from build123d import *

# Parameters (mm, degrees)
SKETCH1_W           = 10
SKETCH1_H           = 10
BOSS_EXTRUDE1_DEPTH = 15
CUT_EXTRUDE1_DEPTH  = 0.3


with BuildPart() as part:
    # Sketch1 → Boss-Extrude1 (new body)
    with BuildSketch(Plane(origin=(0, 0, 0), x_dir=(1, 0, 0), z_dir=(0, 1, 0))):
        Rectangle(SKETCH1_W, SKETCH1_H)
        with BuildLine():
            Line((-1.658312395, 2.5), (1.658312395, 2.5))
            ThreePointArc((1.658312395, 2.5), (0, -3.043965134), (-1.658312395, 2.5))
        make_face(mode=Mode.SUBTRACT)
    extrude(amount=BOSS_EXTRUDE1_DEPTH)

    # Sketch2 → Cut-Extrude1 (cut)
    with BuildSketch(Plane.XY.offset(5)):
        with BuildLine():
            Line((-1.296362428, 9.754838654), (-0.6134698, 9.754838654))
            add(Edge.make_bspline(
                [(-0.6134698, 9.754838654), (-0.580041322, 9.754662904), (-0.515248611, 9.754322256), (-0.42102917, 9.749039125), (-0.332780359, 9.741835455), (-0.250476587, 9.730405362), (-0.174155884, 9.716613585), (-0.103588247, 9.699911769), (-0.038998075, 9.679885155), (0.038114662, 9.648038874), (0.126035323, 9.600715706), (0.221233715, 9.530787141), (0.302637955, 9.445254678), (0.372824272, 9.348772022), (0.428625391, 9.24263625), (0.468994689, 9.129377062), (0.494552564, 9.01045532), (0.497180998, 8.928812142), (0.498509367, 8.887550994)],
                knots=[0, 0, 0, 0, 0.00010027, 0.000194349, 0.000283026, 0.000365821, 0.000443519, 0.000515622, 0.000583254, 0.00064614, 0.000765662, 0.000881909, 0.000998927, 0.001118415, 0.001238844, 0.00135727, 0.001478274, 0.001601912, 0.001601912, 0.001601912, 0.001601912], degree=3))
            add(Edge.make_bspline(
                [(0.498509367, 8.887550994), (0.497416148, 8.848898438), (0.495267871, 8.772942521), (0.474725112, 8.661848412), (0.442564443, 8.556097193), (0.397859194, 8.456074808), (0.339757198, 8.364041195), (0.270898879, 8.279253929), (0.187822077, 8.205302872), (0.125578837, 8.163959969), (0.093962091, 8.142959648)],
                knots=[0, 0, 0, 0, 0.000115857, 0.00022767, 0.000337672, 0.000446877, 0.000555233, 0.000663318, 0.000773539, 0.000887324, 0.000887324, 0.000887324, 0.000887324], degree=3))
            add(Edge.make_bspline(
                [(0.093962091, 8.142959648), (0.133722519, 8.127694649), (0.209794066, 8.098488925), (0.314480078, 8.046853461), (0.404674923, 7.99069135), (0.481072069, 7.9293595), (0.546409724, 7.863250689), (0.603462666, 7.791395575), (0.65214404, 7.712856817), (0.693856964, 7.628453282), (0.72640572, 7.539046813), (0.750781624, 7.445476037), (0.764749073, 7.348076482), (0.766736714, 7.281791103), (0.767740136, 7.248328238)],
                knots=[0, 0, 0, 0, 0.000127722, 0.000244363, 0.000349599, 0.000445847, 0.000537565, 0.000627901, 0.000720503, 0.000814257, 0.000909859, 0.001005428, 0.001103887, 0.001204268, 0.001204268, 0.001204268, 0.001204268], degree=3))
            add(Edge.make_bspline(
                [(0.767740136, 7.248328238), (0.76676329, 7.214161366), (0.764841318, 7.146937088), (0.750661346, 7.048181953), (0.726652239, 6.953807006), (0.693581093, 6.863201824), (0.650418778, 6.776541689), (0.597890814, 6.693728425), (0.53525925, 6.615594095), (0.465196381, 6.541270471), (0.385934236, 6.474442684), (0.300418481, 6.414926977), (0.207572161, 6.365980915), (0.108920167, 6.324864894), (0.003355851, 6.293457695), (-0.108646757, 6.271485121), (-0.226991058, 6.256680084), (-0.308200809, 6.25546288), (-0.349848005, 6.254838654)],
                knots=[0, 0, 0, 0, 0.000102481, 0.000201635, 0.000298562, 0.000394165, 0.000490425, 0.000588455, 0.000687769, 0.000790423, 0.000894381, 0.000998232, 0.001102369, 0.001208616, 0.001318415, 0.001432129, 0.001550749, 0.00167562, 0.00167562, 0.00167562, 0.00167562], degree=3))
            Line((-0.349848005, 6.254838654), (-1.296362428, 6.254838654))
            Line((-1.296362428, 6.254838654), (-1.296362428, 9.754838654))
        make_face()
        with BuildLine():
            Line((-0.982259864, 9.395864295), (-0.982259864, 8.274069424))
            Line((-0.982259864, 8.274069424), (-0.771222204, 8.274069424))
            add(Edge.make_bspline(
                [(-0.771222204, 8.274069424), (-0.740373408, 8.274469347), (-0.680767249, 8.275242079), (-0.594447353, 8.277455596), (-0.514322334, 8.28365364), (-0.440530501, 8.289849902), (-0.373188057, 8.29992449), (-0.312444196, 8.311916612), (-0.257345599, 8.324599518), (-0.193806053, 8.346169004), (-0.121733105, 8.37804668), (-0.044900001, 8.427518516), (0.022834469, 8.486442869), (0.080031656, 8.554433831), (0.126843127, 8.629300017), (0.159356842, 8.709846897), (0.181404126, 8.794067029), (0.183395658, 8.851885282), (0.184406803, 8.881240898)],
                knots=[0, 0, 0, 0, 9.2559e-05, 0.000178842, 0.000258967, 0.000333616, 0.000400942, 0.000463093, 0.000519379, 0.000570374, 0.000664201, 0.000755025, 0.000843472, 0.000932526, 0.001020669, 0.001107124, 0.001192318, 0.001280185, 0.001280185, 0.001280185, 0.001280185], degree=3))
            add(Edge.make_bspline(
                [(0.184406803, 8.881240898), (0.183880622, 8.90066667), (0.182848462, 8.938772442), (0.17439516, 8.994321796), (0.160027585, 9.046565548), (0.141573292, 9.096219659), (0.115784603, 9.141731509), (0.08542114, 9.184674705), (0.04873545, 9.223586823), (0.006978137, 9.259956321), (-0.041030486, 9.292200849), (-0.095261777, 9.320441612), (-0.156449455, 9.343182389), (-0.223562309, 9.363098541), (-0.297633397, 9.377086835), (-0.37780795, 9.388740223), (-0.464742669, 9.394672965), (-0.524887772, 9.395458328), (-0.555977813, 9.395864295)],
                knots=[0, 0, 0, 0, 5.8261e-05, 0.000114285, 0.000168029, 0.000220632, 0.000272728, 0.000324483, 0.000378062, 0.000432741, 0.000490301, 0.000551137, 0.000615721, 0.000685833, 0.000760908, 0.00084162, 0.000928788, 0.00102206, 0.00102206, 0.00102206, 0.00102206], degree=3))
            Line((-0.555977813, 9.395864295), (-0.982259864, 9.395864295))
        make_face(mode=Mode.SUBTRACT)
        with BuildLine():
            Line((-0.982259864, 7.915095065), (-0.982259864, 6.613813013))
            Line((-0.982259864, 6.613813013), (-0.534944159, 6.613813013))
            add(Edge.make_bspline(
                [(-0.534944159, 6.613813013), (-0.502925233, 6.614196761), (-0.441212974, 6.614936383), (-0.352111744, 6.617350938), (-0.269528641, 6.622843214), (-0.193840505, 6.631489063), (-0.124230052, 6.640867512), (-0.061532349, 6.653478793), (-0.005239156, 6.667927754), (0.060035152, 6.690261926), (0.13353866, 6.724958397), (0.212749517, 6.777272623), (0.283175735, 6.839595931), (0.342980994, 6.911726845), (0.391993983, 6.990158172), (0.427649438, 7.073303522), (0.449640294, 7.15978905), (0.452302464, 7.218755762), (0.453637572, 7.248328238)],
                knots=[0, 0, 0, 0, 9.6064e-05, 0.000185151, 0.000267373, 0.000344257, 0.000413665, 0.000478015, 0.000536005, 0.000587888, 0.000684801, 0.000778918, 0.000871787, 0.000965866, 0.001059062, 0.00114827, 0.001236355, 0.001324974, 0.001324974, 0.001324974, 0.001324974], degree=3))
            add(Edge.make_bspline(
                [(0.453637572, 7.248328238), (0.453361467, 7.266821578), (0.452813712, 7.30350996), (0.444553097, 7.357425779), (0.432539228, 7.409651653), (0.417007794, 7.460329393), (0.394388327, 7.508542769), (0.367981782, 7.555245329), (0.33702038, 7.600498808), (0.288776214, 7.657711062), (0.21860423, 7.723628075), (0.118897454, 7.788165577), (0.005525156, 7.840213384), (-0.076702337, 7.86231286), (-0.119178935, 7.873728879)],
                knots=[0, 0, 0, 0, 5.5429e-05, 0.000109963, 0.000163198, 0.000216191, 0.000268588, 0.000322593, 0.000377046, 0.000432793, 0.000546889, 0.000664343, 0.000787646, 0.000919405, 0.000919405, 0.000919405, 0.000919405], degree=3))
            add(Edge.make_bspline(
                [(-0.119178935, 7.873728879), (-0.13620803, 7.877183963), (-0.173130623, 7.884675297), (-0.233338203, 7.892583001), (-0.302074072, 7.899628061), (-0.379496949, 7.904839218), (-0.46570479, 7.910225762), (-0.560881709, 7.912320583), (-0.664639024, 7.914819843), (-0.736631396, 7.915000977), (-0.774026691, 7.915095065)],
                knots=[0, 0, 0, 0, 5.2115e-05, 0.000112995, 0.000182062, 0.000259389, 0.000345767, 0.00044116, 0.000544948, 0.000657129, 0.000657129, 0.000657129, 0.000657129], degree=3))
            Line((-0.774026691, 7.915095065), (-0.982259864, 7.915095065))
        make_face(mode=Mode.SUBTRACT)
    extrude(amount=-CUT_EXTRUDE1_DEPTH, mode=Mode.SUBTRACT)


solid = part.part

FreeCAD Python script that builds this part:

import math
import FreeCAD as App
import Part
import Sketcher

V = App.Vector
Q = App.Units.Quantity

doc = App.newDocument("Part")
body = doc.addObject("PartDesign::Body", "Body")

sketch1 = body.newObject("Sketcher::SketchObject", "Sketch")
sketch1.AttachmentSupport = (doc.getObject("XZ_Plane"), [""])
sketch1.MapMode = "FlatFace"
sketch1.addGeometry(Part.LineSegment(V(-5, -5, 0), V(-5, 5, 0)), False)
sketch1.addGeometry(Part.LineSegment(V(-5, 5, 0), V(5, 5, 0)), False)
sketch1.addGeometry(Part.LineSegment(V(5, 5, 0), V(5, -5, 0)), False)
sketch1.addGeometry(Part.LineSegment(V(5, -5, 0), V(-5, -5, 0)), False)
sketch1.addGeometry(Part.ArcOfCircle(Part.Circle(V(0, 0, 0), V(0, 0, 1), 3), math.radians(-57), math.radians(237)), False)
sketch1.addGeometry(Part.LineSegment(V(-1.7, -2.5, 0), V(1.7, -2.5, 0)), False)
sketch1.addConstraint(Sketcher.Constraint("Coincident", 0, 2, 1, 1))
sketch1.addConstraint(Sketcher.Constraint("Coincident", 1, 2, 2, 1))
sketch1.addConstraint(Sketcher.Constraint("Coincident", 2, 2, 3, 1))
sketch1.addConstraint(Sketcher.Constraint("Coincident", 3, 2, 0, 1))
sketch1.addConstraint(Sketcher.Constraint("Coincident", 4, 1, 5, 2))
sketch1.addConstraint(Sketcher.Constraint("Coincident", 5, 1, 4, 2))
sketch1.addConstraint(Sketcher.Constraint("Vertical", 0))
sketch1.addConstraint(Sketcher.Constraint("Horizontal", 1))
sketch1.addConstraint(Sketcher.Constraint("Vertical", 2))
sketch1.addConstraint(Sketcher.Constraint("Horizontal", 3))
sketch1.addConstraint(Sketcher.Constraint("Horizontal", 5))
sketch1.addConstraint(Sketcher.Constraint("Symmetric", 0, 2, 2, 2, -1, 1))
sketch1.addConstraint(Sketcher.Constraint("PointOnObject", 4, 3, -2))
sketch1.addConstraint(Sketcher.Constraint("Equal", 3, 0))
sketch1.addConstraint(Sketcher.Constraint("DistanceX", 1, 1, 1, 2, Q("10 mm")))
sketch1.addConstraint(Sketcher.Constraint("Radius", 4, Q("3.02 mm")))
sketch1.addConstraint(Sketcher.Constraint("DistanceY", 4, 1, -1, 1, Q("2.5 mm")))
sketch1.addConstraint(Sketcher.Constraint("DistanceX", 5, 1, 5, 2, Q("3.316625 mm")))
pad1 = body.newObject("PartDesign::Pad", "Pad")
pad1.Profile = sketch1
pad1.Length = 15
pad1.Reversed = True

sketch2 = body.newObject("Sketcher::SketchObject", "Sketch001")
sketch2.AttachmentSupport = (doc.getObject("XY_Plane"), [""])
sketch2.MapMode = "FlatFace"
sketch2.AttachmentOffset = App.Placement(V(0, 0, 5), App.Rotation())
sketch2.addGeometry(Part.LineSegment(V(-0.61347, 9.754839, 0), V(-1.296362, 9.754839, 0)), False)
sketch2.addGeometry(Part.LineSegment(V(-1.296362, 9.754839, 0), V(-1.296362, 6.254839, 0)), False)
sketch2.addGeometry(Part.LineSegment(V(-1.296362, 6.254839, 0), V(-0.349848, 6.254839, 0)), False)
sketch2.addGeometry(Part.BSplineCurve([V(0.76774, 7.248328, 0), V(0.766763, 7.214161, 0), V(0.764841, 7.146937, 0), V(0.750661, 7.048182, 0), V(0.726652, 6.953807, 0), V(0.693581, 6.863202, 0), V(0.650419, 6.776542, 0), V(0.597891, 6.693728, 0), V(0.535259, 6.615594, 0), V(0.465196, 6.54127, 0), V(0.385934, 6.474443, 0), V(0.300418, 6.414927, 0), V(0.207572, 6.365981, 0), V(0.10892, 6.324865, 0), V(0.003356, 6.293458, 0), V(-0.108647, 6.271485, 0), V(-0.226991, 6.25668, 0), V(-0.308201, 6.255463, 0), V(-0.349848, 6.254839, 0)], [4, 1, 1, 1, 1, 1, 1, 1, 1, 1, 1, 1, 1, 1, 1, 1, 4], [0, 0.000102481, 0.000201635, 0.000298562, 0.000394165, 0.000490425, 0.000588455, 0.000687769, 0.000790423, 0.000894381, 0.000998232, 0.001102369, 0.001208616, 0.001318415, 0.001432129, 0.001550749, 0.00167562], False, 3, [1, 1, 1, 1, 1, 1, 1, 1, 1, 1, 1, 1, 1, 1, 1, 1, 1, 1, 1], False), False)
sketch2.addGeometry(Part.BSplineCurve([V(0.093962, 8.14296, 0), V(0.133723, 8.127695, 0), V(0.209794, 8.098489, 0), V(0.31448, 8.046853, 0), V(0.404675, 7.990691, 0), V(0.481072, 7.92936, 0), V(0.54641, 7.863251, 0), V(0.603463, 7.791396, 0), V(0.652144, 7.712857, 0), V(0.693857, 7.628453, 0), V(0.726406, 7.539047, 0), V(0.750782, 7.445476, 0), V(0.764749, 7.348076, 0), V(0.766737, 7.281791, 0), V(0.76774, 7.248328, 0)], [4, 1, 1, 1, 1, 1, 1, 1, 1, 1, 1, 1, 4], [0, 0.000127722, 0.000244363, 0.000349599, 0.000445847, 0.000537565, 0.000627901, 0.000720503, 0.000814257, 0.000909859, 0.001005428, 0.001103887, 0.001204268], False, 3, [1, 1, 1, 1, 1, 1, 1, 1, 1, 1, 1, 1, 1, 1, 1], False), False)
sketch2.addGeometry(Part.BSplineCurve([V(0.498509, 8.887551, 0), V(0.497416, 8.848898, 0), V(0.495268, 8.772943, 0), V(0.474725, 8.661848, 0), V(0.442564, 8.556097, 0), V(0.397859, 8.456075, 0), V(0.339757, 8.364041, 0), V(0.270899, 8.279254, 0), V(0.187822, 8.205303, 0), V(0.125579, 8.16396, 0), V(0.093962, 8.14296, 0)], [4, 1, 1, 1, 1, 1, 1, 1, 4], [0, 0.000115857, 0.00022767, 0.000337672, 0.000446877, 0.000555233, 0.000663318, 0.000773539, 0.000887324], False, 3, [1, 1, 1, 1, 1, 1, 1, 1, 1, 1, 1], False), False)
sketch2.addGeometry(Part.BSplineCurve([V(-0.61347, 9.754839, 0), V(-0.580041, 9.754663, 0), V(-0.515249, 9.754322, 0), V(-0.421029, 9.749039, 0), V(-0.33278, 9.741835, 0), V(-0.250477, 9.730405, 0), V(-0.174156, 9.716614, 0), V(-0.103588, 9.699912, 0), V(-0.038998, 9.679885, 0), V(0.038115, 9.648039, 0), V(0.126035, 9.600716, 0), V(0.221234, 9.530787, 0), V(0.302638, 9.445255, 0), V(0.372824, 9.348772, 0), V(0.428625, 9.242636, 0), V(0.468995, 9.129377, 0), V(0.494553, 9.010455, 0), V(0.497181, 8.928812, 0), V(0.498509, 8.887551, 0)], [4, 1, 1, 1, 1, 1, 1, 1, 1, 1, 1, 1, 1, 1, 1, 1, 4], [0, 0.00010027, 0.000194349, 0.000283026, 0.000365821, 0.000443519, 0.000515622, 0.000583254, 0.00064614, 0.000765662, 0.000881909, 0.000998927, 0.001118415, 0.001238844, 0.00135727, 0.001478274, 0.001601912], False, 3, [1, 1, 1, 1, 1, 1, 1, 1, 1, 1, 1, 1, 1, 1, 1, 1, 1, 1, 1], False), False)
sketch2.addGeometry(Part.LineSegment(V(-0.98226, 7.915095, 0), V(-0.774027, 7.915095, 0)), False)
sketch2.addGeometry(Part.BSplineCurve([V(-0.119179, 7.873729, 0), V(-0.136208, 7.877184, 0), V(-0.173131, 7.884675, 0), V(-0.233338, 7.892583, 0), V(-0.302074, 7.899628, 0), V(-0.379497, 7.904839, 0), V(-0.465705, 7.910226, 0), V(-0.560882, 7.912321, 0), V(-0.664639, 7.91482, 0), V(-0.736631, 7.915001, 0), V(-0.774027, 7.915095, 0)], [4, 1, 1, 1, 1, 1, 1, 1, 4], [0, 0.000052115, 0.000112995, 0.000182062, 0.000259389, 0.000345767, 0.00044116, 0.000544948, 0.000657129], False, 3, [1, 1, 1, 1, 1, 1, 1, 1, 1, 1, 1], False), False)
sketch2.addGeometry(Part.BSplineCurve([V(0.453638, 7.248328, 0), V(0.453361, 7.266822, 0), V(0.452814, 7.30351, 0), V(0.444553, 7.357426, 0), V(0.432539, 7.409652, 0), V(0.417008, 7.460329, 0), V(0.394388, 7.508543, 0), V(0.367982, 7.555245, 0), V(0.33702, 7.600499, 0), V(0.288776, 7.657711, 0), V(0.218604, 7.723628, 0), V(0.118897, 7.788166, 0), V(0.005525, 7.840213, 0), V(-0.076702, 7.862313, 0), V(-0.119179, 7.873729, 0)], [4, 1, 1, 1, 1, 1, 1, 1, 1, 1, 1, 1, 4], [0, 0.000055429, 0.000109963, 0.000163198, 0.000216191, 0.000268588, 0.000322593, 0.000377046, 0.000432793, 0.000546889, 0.000664343, 0.000787646, 0.000919405], False, 3, [1, 1, 1, 1, 1, 1, 1, 1, 1, 1, 1, 1, 1, 1, 1], False), False)
sketch2.addGeometry(Part.BSplineCurve([V(-0.534944, 6.613813, 0), V(-0.502925, 6.614197, 0), V(-0.441213, 6.614936, 0), V(-0.352112, 6.617351, 0), V(-0.269529, 6.622843, 0), V(-0.193841, 6.631489, 0), V(-0.12423, 6.640868, 0), V(-0.061532, 6.653479, 0), V(-0.005239, 6.667928, 0), V(0.060035, 6.690262, 0), V(0.133539, 6.724958, 0), V(0.21275, 6.777273, 0), V(0.283176, 6.839596, 0), V(0.342981, 6.911727, 0), V(0.391994, 6.990158, 0), V(0.427649, 7.073304, 0), V(0.44964, 7.159789, 0), V(0.452302, 7.218756, 0), V(0.453638, 7.248328, 0)], [4, 1, 1, 1, 1, 1, 1, 1, 1, 1, 1, 1, 1, 1, 1, 1, 4], [0, 0.000096064, 0.000185151, 0.000267373, 0.000344257, 0.000413665, 0.000478015, 0.000536005, 0.000587888, 0.000684801, 0.000778918, 0.000871787, 0.000965866, 0.001059062, 0.00114827, 0.001236355, 0.001324974], False, 3, [1, 1, 1, 1, 1, 1, 1, 1, 1, 1, 1, 1, 1, 1, 1, 1, 1, 1, 1], False), False)
sketch2.addGeometry(Part.LineSegment(V(-0.534944, 6.613813, 0), V(-0.98226, 6.613813, 0)), False)
sketch2.addGeometry(Part.LineSegment(V(-0.98226, 6.613813, 0), V(-0.98226, 7.915095, 0)), False)
sketch2.addGeometry(Part.LineSegment(V(-0.98226, 9.395864, 0), V(-0.555978, 9.395864, 0)), False)
sketch2.addGeometry(Part.BSplineCurve([V(0.184407, 8.881241, 0), V(0.183881, 8.900667, 0), V(0.182848, 8.938772, 0), V(0.174395, 8.994322, 0), V(0.160028, 9.046566, 0), V(0.141573, 9.09622, 0), V(0.115785, 9.141732, 0), V(0.085421, 9.184675, 0), V(0.048735, 9.223587, 0), V(0.006978, 9.259956, 0), V(-0.04103, 9.292201, 0), V(-0.095262, 9.320442, 0), V(-0.156449, 9.343182, 0), V(-0.223562, 9.363099, 0), V(-0.297633, 9.377087, 0), V(-0.377808, 9.38874, 0), V(-0.464743, 9.394673, 0), V(-0.524888, 9.395458, 0), V(-0.555978, 9.395864, 0)], [4, 1, 1, 1, 1, 1, 1, 1, 1, 1, 1, 1, 1, 1, 1, 1, 4], [0, 0.000058261, 0.000114285, 0.000168029, 0.000220632, 0.000272728, 0.000324483, 0.000378062, 0.000432741, 0.000490301, 0.000551137, 0.000615721, 0.000685833, 0.000760908, 0.00084162, 0.000928788, 0.00102206], False, 3, [1, 1, 1, 1, 1, 1, 1, 1, 1, 1, 1, 1, 1, 1, 1, 1, 1, 1, 1], False), False)
sketch2.addGeometry(Part.BSplineCurve([V(-0.771222, 8.274069, 0), V(-0.740373, 8.274469, 0), V(-0.680767, 8.275242, 0), V(-0.594447, 8.277456, 0), V(-0.514322, 8.283654, 0), V(-0.440531, 8.28985, 0), V(-0.373188, 8.299924, 0), V(-0.312444, 8.311917, 0), V(-0.257346, 8.3246, 0), V(-0.193806, 8.346169, 0), V(-0.121733, 8.378047, 0), V(-0.0449, 8.427519, 0), V(0.022834, 8.486443, 0), V(0.080032, 8.554434, 0), V(0.126843, 8.6293, 0), V(0.159357, 8.709847, 0), V(0.181404, 8.794067, 0), V(0.183396, 8.851885, 0), V(0.184407, 8.881241, 0)], [4, 1, 1, 1, 1, 1, 1, 1, 1, 1, 1, 1, 1, 1, 1, 1, 4], [0, 0.000092559, 0.000178842, 0.000258967, 0.000333616, 0.000400942, 0.000463093, 0.000519379, 0.000570374, 0.000664201, 0.000755025, 0.000843472, 0.000932526, 0.001020669, 0.001107124, 0.001192318, 0.001280185], False, 3, [1, 1, 1, 1, 1, 1, 1, 1, 1, 1, 1, 1, 1, 1, 1, 1, 1, 1, 1], False), False)
sketch2.addGeometry(Part.LineSegment(V(-0.771222, 8.274069, 0), V(-0.98226, 8.274069, 0)), False)
sketch2.addGeometry(Part.LineSegment(V(-0.98226, 8.274069, 0), V(-0.98226, 9.395864, 0)), False)
sketch2.addConstraint(Sketcher.Constraint("Block", 3))
sketch2.addConstraint(Sketcher.Constraint("Block", 4))
sketch2.addConstraint(Sketcher.Constraint("Block", 5))
sketch2.addConstraint(Sketcher.Constraint("Block", 6))
sketch2.addConstraint(Sketcher.Constraint("Block", 8))
sketch2.addConstraint(Sketcher.Constraint("Block", 9))
sketch2.addConstraint(Sketcher.Constraint("Block", 10))
sketch2.addConstraint(Sketcher.Constraint("Block", 14))
sketch2.addConstraint(Sketcher.Constraint("Block", 15))
sketch2.addConstraint(Sketcher.Constraint("Coincident", 0, 2, 1, 1))
sketch2.addConstraint(Sketcher.Constraint("Coincident", 1, 2, 2, 1))
sketch2.addConstraint(Sketcher.Constraint("Coincident", 2, 2, 3, 2))
sketch2.addConstraint(Sketcher.Constraint("Coincident", 6, 1, 0, 1))
sketch2.addConstraint(Sketcher.Constraint("Coincident", 7, 2, 8, 2))
sketch2.addConstraint(Sketcher.Constraint("Coincident", 10, 1, 11, 1))
sketch2.addConstraint(Sketcher.Constraint("Coincident", 11, 2, 12, 1))
sketch2.addConstraint(Sketcher.Constraint("Coincident", 12, 2, 7, 1))
sketch2.addConstraint(Sketcher.Constraint("Coincident", 13, 2, 14, 2))
sketch2.addConstraint(Sketcher.Constraint("Coincident", 15, 1, 16, 1))
sketch2.addConstraint(Sketcher.Constraint("Coincident", 16, 2, 17, 1))
sketch2.addConstraint(Sketcher.Constraint("Coincident", 17, 2, 13, 1))
sketch2.addConstraint(Sketcher.Constraint("Horizontal", 0))
sketch2.addConstraint(Sketcher.Constraint("Vertical", 1))
sketch2.addConstraint(Sketcher.Constraint("Horizontal", 2))
sketch2.addConstraint(Sketcher.Constraint("Horizontal", 7))
sketch2.addConstraint(Sketcher.Constraint("Horizontal", 11))
sketch2.addConstraint(Sketcher.Constraint("Vertical", 12))
sketch2.addConstraint(Sketcher.Constraint("Horizontal", 13))
sketch2.addConstraint(Sketcher.Constraint("Horizontal", 16))
sketch2.addConstraint(Sketcher.Constraint("Vertical", 17))
sketch2.addConstraint(Sketcher.Constraint("Vertical", 12, 2, 16, 2))
sketch2.addConstraint(Sketcher.Constraint("DistanceX", 0, 2, 0, 1, Q("0.682893 mm")))
sketch2.addConstraint(Sketcher.Constraint("DistanceX", 7, 1, 7, 2, Q("0.208233 mm")))
pocket1 = body.newObject("PartDesign::Pocket", "Pocket")
pocket1.Profile = sketch2
pocket1.Length = 0.3

doc.recompute()
